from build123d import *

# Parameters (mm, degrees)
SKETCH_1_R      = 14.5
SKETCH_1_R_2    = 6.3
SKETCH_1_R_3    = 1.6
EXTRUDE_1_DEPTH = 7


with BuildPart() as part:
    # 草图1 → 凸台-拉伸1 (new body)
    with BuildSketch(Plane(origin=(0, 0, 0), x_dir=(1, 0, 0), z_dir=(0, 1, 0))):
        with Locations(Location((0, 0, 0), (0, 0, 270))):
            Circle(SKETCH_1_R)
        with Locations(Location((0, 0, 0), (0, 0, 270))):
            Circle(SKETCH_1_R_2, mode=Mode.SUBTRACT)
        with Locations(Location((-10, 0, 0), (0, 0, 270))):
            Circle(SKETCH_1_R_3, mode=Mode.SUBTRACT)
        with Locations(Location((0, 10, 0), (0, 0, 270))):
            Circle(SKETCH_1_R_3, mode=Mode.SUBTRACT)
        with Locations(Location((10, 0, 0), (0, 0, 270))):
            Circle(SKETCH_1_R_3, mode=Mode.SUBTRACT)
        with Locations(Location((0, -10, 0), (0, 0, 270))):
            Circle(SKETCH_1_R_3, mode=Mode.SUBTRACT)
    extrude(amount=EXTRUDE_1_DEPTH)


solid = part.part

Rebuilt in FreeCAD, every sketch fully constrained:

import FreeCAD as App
import Part
import Sketcher

V = App.Vector
Q = App.Units.Quantity

doc = App.newDocument("Part")
body = doc.addObject("PartDesign::Body", "Body")

sketch1 = body.newObject("Sketcher::SketchObject", "Sketch")
sketch1.AttachmentSupport = (doc.getObject("XZ_Plane"), [""])
sketch1.MapMode = "FlatFace"
sketch1.addGeometry(Part.Circle(V(0, 0, 0), V(0, 0, 1), 14.5), False)
sketch1.addGeometry(Part.Circle(V(0, -10, 0), V(0, 0, 1), 1.6), False)
sketch1.addGeometry(Part.Circle(V(-10, 0, 0), V(0, 0, 1), 1.6), False)
sketch1.addGeometry(Part.Circle(V(10, 0, 0), V(0, 0, 1), 1.6), False)
sketch1.addGeometry(Part.Circle(V(0, 0, 0), V(0, 0, 1), 6.3), False)
sketch1.addGeometry(Part.Circle(V(0, 10, 0), V(0, 0, 1), 1.6), False)
sketch1.addConstraint(Sketcher.Constraint("Coincident", 0, 3, -1, 1))
sketch1.addConstraint(Sketcher.Constraint("Coincident", 4, 3, -1, 1))
sketch1.addConstraint(Sketcher.Constraint("Equal", 1, 2))
sketch1.addConstraint(Sketcher.Constraint("Equal", 2, 3))
sketch1.addConstraint(Sketcher.Constraint("Equal", 3, 5))
sketch1.addConstraint(Sketcher.Constraint("Symmetric", 2, 3, 3, 3, -1, 1))
sketch1.addConstraint(Sketcher.Constraint("Symmetric", 1, 3, 5, 3, -1, 1))
sketch1.addConstraint(Sketcher.Constraint("PointOnObject", 1, 3, -2))
sketch1.addConstraint(Sketcher.Constraint("PointOnObject", 2, 3, -1))
sketch1.addConstraint(Sketcher.Constraint("Diameter", 0, Q("29 mm")))
sketch1.addConstraint(Sketcher.Constraint("Diameter", 1, Q("3.2 mm")))
sketch1.addConstraint(Sketcher.Constraint("Diameter", 4, Q("12.6 mm")))
sketch1.addConstraint(Sketcher.Constraint("DistanceY", 1, 3, -1, 1, Q("10 mm")))
sketch1.addConstraint(Sketcher.Constraint("DistanceX", 2, 3, -1, 1, Q("10 mm")))
pad1 = body.newObject("PartDesign::Pad", "Pad")
pad1.Profile = sketch1
pad1.Length = 7
pad1.Reversed = True

doc.recompute()
